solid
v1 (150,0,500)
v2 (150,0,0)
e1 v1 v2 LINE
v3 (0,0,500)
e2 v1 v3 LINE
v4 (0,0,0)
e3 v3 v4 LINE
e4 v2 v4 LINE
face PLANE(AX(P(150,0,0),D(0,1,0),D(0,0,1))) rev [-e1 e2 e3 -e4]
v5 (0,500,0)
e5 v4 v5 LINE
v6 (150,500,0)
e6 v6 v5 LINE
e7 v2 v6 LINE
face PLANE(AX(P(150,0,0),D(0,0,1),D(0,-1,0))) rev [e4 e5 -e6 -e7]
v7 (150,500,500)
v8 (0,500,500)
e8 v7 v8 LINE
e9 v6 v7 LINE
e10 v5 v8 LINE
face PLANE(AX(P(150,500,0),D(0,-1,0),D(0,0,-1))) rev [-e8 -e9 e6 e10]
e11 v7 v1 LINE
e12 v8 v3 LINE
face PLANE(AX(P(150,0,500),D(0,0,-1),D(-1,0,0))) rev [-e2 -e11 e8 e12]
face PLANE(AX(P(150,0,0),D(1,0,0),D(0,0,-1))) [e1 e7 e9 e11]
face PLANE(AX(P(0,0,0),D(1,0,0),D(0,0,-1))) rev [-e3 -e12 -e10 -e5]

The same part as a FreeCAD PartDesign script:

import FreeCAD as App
import Part
import Sketcher

V = App.Vector
Q = App.Units.Quantity


def add_polygon(sketch, points):
    """Adds a closed chain of lines whose ends are joined by coincident constraints."""
    first, n = sketch.GeometryCount, len(points)
    for a, b in zip(points, points[1:] + points[:1]):
        sketch.addGeometry(Part.LineSegment(App.Vector(*a, 0), App.Vector(*b, 0)), False)
    for i in range(n):
        sketch.addConstraint(Sketcher.Constraint("Coincident", first + i, 2, first + (i + 1) % n, 1))

doc = App.newDocument("Part")
body = doc.addObject("PartDesign::Body", "Body")

# Sketch on YZ plane
sketch1 = body.newObject("Sketcher::SketchObject", "Sketch")
sketch1.AttachmentSupport = (doc.getObject("YZ_Plane"), [""])
sketch1.MapMode = "FlatFace"
add_polygon(sketch1, [(500, 500), (0, 500), (0, 0), (500, 0)])  # lines 0-3
sketch1.addConstraint(Sketcher.Constraint("Horizontal", 0))
sketch1.addConstraint(Sketcher.Constraint("Vertical", 1))
sketch1.addConstraint(Sketcher.Constraint("Horizontal", 2))
sketch1.addConstraint(Sketcher.Constraint("Vertical", 3))
sketch1.addConstraint(Sketcher.Constraint("Coincident", 1, 2, -1, 1))
sketch1.addConstraint(Sketcher.Constraint("Equal", 2, 1))
sketch1.addConstraint(Sketcher.Constraint("DistanceX", 0, 2, 0, 1, Q("500 mm")))
pad1 = body.newObject("PartDesign::Pad", "Pad")
pad1.Profile = sketch1
pad1.Length = 150

doc.recompute()
